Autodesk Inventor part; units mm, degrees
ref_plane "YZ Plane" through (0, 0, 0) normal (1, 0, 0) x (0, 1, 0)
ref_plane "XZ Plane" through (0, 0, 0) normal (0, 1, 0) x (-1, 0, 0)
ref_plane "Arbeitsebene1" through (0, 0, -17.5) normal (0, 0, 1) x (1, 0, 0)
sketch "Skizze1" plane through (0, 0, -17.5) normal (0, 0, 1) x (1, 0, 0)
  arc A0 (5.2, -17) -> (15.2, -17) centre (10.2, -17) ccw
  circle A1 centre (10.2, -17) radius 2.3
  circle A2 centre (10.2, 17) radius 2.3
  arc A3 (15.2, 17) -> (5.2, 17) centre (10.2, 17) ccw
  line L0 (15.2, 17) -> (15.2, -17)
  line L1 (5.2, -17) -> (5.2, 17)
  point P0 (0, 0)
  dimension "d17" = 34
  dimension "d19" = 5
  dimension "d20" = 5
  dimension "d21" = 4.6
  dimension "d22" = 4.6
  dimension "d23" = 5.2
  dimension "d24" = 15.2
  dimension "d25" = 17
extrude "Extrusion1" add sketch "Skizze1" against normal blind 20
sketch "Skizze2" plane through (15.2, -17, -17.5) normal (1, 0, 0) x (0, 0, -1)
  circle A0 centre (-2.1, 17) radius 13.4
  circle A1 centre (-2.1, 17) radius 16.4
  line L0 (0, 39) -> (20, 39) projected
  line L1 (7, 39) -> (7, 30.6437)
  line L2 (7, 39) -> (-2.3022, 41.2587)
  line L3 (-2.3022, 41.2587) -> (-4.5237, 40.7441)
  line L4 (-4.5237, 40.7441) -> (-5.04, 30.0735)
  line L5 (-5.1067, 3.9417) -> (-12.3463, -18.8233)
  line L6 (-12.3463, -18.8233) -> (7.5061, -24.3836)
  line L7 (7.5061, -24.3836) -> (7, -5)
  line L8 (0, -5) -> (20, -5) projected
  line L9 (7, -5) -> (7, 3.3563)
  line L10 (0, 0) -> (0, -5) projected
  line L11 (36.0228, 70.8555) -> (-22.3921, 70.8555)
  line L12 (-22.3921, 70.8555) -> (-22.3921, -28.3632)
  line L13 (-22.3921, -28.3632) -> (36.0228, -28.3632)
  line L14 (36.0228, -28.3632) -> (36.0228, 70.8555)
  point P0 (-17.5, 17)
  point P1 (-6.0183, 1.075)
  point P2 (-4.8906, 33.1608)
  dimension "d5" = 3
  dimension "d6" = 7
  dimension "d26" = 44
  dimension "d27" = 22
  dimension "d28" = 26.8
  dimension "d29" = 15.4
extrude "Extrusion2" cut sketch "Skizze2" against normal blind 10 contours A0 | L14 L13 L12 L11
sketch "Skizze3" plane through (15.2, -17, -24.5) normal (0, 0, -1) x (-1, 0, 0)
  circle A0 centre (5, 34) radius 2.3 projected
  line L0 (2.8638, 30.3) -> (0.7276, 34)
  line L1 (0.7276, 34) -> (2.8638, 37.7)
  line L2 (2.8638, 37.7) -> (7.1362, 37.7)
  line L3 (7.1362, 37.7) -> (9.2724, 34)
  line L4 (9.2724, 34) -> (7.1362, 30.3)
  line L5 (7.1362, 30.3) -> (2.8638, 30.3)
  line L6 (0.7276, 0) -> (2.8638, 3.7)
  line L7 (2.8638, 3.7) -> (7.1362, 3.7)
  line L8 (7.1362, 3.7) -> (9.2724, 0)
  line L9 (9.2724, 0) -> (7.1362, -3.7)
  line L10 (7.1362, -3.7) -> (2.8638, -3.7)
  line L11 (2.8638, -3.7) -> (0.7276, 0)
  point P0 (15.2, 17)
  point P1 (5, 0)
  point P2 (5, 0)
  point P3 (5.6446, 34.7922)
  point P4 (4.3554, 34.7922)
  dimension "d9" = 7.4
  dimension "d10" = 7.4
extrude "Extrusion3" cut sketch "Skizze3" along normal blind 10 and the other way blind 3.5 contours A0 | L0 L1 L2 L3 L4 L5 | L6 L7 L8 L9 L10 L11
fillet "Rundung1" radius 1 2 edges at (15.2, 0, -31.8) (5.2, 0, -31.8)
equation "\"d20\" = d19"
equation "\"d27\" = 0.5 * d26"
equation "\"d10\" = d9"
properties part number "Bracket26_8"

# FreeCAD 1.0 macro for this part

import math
import FreeCAD as App
import Part
import Sketcher
from FreeCAD import Vector
Q = App.Units.Quantity


def edges_at(feature, points):
    """Names of the edges that pass closest to the given points."""
    edges = feature.Shape.Edges
    near = lambda p: min(range(len(edges)), key=lambda i: edges[i].distToShape(Part.Vertex(*p))[0])
    return sorted({f"Edge{near(p) + 1}" for p in points})


def add_polygon(sketch, points):
    """Adds a closed chain of lines whose ends are joined by coincident constraints."""
    first, n = sketch.GeometryCount, len(points)
    for a, b in zip(points, points[1:] + points[:1]):
        sketch.addGeometry(Part.LineSegment(App.Vector(*a, 0), App.Vector(*b, 0)), False)
    for i in range(n):
        sketch.addConstraint(Sketcher.Constraint("Coincident", first + i, 2, first + (i + 1) % n, 1))

doc = App.newDocument("Part")
params = doc.addObject("Spreadsheet::Sheet", "Params")
for row, (alias, value) in enumerate([
    ("sketch1_radius", "5 mm"),
    ("sketch1_diameter", "4.6 mm"),
    ("sketch1_height", "34 mm"),
    ("pad1_length", "20 mm"),
    ("sketch2_diameter", "26.8 mm"),
    ("sketch2_radius", "16.4 mm"),
    ("pocket1_length", "10 mm"),
    ("pocket2_length", "10 mm"),
    ("pocket2_length2", "3.5 mm"),
    ("fillet_radius", "1 mm"),
], start=1):
    params.set(f"A{row}", alias)
    params.set(f"B{row}", "=" + value)
    params.setAlias(f"B{row}", alias)

body = doc.addObject("PartDesign::Body", "Body")

sketch1 = body.newObject("Sketcher::SketchObject", "Sketch")
sketch1.AttachmentSupport = (doc.getObject("XY_Plane"), [""])
sketch1.MapMode = "FlatFace"
sketch1.AttachmentOffset = App.Placement(Vector(0, 0, -17.5), App.Rotation())
sketch1.addGeometry(Part.LineSegment(Vector(5.2, 17, 0), Vector(5.2, -17, 0)), False)
sketch1.addGeometry(Part.ArcOfCircle(Part.Circle(Vector(10.2, -17, 0), Vector(0, 0, 1), 5), math.radians(180), math.radians(360)), False)
sketch1.addGeometry(Part.LineSegment(Vector(15.2, -17, 0), Vector(15.2, 17, 0)), False)
sketch1.addGeometry(Part.ArcOfCircle(Part.Circle(Vector(10.2, 17, 0), Vector(0, 0, 1), 5), math.radians(0), math.radians(180)), False)
sketch1.addGeometry(Part.Circle(Vector(10.2, -17, 0), Vector(0, 0, 1), 2.3), False)
sketch1.addGeometry(Part.Circle(Vector(10.2, 17, 0), Vector(0, 0, 1), 2.3), False)
sketch1.addConstraint(Sketcher.Constraint("Tangent", 0, 2, 1, 1))
sketch1.addConstraint(Sketcher.Constraint("Tangent", 1, 2, 2, 1))
sketch1.addConstraint(Sketcher.Constraint("Tangent", 2, 2, 3, 1))
sketch1.addConstraint(Sketcher.Constraint("Tangent", 3, 2, 0, 1))
sketch1.addConstraint(Sketcher.Constraint("Vertical", 0))
sketch1.addConstraint(Sketcher.Constraint("Vertical", 2))
sketch1.addConstraint(Sketcher.Constraint("Coincident", 4, 3, 1, 3))
sketch1.addConstraint(Sketcher.Constraint("Coincident", 5, 3, 3, 3))
sketch1.addConstraint(Sketcher.Constraint("Equal", 4, 5))
sketch1.addConstraint(Sketcher.Constraint("Radius", 1, Q("5 mm")))
sketch1.addConstraint(Sketcher.Constraint("Diameter", 4, Q("4.6 mm")))
sketch1.addConstraint(Sketcher.Constraint("DistanceY", 0, 2, 0, 1, Q("34 mm")))
sketch1.addConstraint(Sketcher.Constraint("DistanceY", 1, 3, -1, 1, Q("17 mm")))
sketch1.addConstraint(Sketcher.Constraint("DistanceX", -1, 1, 0, 2, Q("5.2 mm")))
sketch1.setExpression("Constraints[9]", "Params.sketch1_radius")
sketch1.setExpression("Constraints[10]", "Params.sketch1_diameter")
sketch1.setExpression("Constraints[11]", "Params.sketch1_height")
pad1 = body.newObject("PartDesign::Pad", "Pad")
pad1.Profile = sketch1
pad1.setExpression("Length", "Params.pad1_length")
pad1.Reversed = True

sketch2 = body.newObject("Sketcher::SketchObject", "Sketch001")
sketch2.AttachmentSupport = (doc.getObject("YZ_Plane"), [""])
sketch2.MapMode = "FlatFace"
sketch2.AttachmentOffset = App.Placement(Vector(0, 0, 15.2), App.Rotation())
sketch2.addGeometry(Part.Circle(Vector(0, -15.4, 0), Vector(0, 0, 1), 13.4), False)
add_polygon(sketch2, [(-45.3632, -53.5228), (53.8555, -53.5228), (53.8555, 4.8921), (-45.3632, 4.8921)])
sketch2.addGeometry(Part.ArcOfCircle(Part.Circle(Vector(0, -15.4, 0), Vector(0, 0, 1), 16.4), math.radians(9.797103), math.radians(166.176933)), False)
sketch2.addGeometry(Part.LineSegment(Vector(16.160831, -12.609381, 0), Vector(23.7441, -12.9763, 0)), False)
sketch2.addGeometry(Part.LineSegment(Vector(23.7441, -12.9763, 0), Vector(24.2587, -15.1978, 0)), False)
sketch2.addGeometry(Part.LineSegment(Vector(24.2587, -15.1978, 0), Vector(22, -24.5, 0)), False)
sketch2.addGeometry(Part.LineSegment(Vector(22, -24.5, 0), Vector(13.6437, -24.5, 0)), False)
sketch2.addGeometry(Part.ArcOfCircle(Part.Circle(Vector(0, -15.4, 0), Vector(0, 0, 1), 16.4), math.radians(-146.297724), math.radians(-33.702276)), False)
sketch2.addGeometry(Part.LineSegment(Vector(-13.6437, -24.5, 0), Vector(-22, -24.5, 0)), False)
sketch2.addGeometry(Part.LineSegment(Vector(-22, -24.5, 0), Vector(-41.3836, -25.0061, 0)), False)
sketch2.addGeometry(Part.LineSegment(Vector(-41.3836, -25.0061, 0), Vector(-35.8233, -5.1537, 0)), False)
sketch2.addGeometry(Part.LineSegment(Vector(-35.8233, -5.1537, 0), Vector(-15.925026, -11.48164, 0)), False)
sketch2.addConstraint(Sketcher.Constraint("Coincident", 5, 1, 6, 1))
sketch2.addConstraint(Sketcher.Constraint("Coincident", 6, 2, 7, 1))
sketch2.addConstraint(Sketcher.Constraint("Coincident", 7, 2, 8, 1))
sketch2.addConstraint(Sketcher.Constraint("Coincident", 8, 2, 9, 1))
sketch2.addConstraint(Sketcher.Constraint("Coincident", 9, 2, 10, 2))
sketch2.addConstraint(Sketcher.Constraint("Coincident", 10, 1, 11, 1))
sketch2.addConstraint(Sketcher.Constraint("Coincident", 11, 2, 12, 1))
sketch2.addConstraint(Sketcher.Constraint("Coincident", 12, 2, 13, 1))
sketch2.addConstraint(Sketcher.Constraint("Coincident", 13, 2, 14, 1))
sketch2.addConstraint(Sketcher.Constraint("Coincident", 14, 2, 5, 2))
sketch2.addConstraint(Sketcher.Constraint("Horizontal", 1))
sketch2.addConstraint(Sketcher.Constraint("Vertical", 2))
sketch2.addConstraint(Sketcher.Constraint("Horizontal", 3))
sketch2.addConstraint(Sketcher.Constraint("Vertical", 4))
sketch2.addConstraint(Sketcher.Constraint("Horizontal", 9))
sketch2.addConstraint(Sketcher.Constraint("Horizontal", 11))
sketch2.addConstraint(Sketcher.Constraint("Coincident", 5, 3, 0, 3))
sketch2.addConstraint(Sketcher.Constraint("Coincident", 10, 3, 0, 3))
sketch2.addConstraint(Sketcher.Constraint("Equal", 5, 10))
sketch2.addConstraint(Sketcher.Constraint("Symmetric", 9, 2, 10, 1, -2))
sketch2.addConstraint(Sketcher.Constraint("Equal", 9, 11))
sketch2.addConstraint(Sketcher.Constraint("Diameter", 0, Q("26.8 mm")))
sketch2.addConstraint(Sketcher.Constraint("DistanceX", -1, 1, 8, 2, Q("22 mm")))
sketch2.addConstraint(Sketcher.Constraint("DistanceY", 0, 3, -1, 1, Q("15.4 mm")))
sketch2.addConstraint(Sketcher.Constraint("Radius", 5, Q("16.4 mm")))
sketch2.addConstraint(Sketcher.Constraint("DistanceY", 8, 2, -1, 1, Q("24.5 mm")))
sketch2.addConstraint(Sketcher.Constraint("Angle", 6, Q("-2.77 deg")))
sketch2.addConstraint(Sketcher.Constraint("DistanceY", 2, 1, 2, 2, Q("58.415 mm")))
sketch2.addConstraint(Sketcher.Constraint("DistanceX", 12, 2, 10, 1, Q("27.74 mm")))
sketch2.addConstraint(Sketcher.Constraint("DistanceX", 3, 2, 13, 2, Q("9.54 mm")))
sketch2.addConstraint(Sketcher.Constraint("DistanceX", 1, 1, 1, 2, Q("99.2187 mm")))
sketch2.addConstraint(Sketcher.Constraint("DistanceY", -1, 1, 2, 2, Q("4.892 mm")))
sketch2.addConstraint(Sketcher.Constraint("DistanceX", -1, 1, 6, 2, Q("23.744 mm")))
sketch2.addConstraint(Sketcher.Constraint("DistanceY", 12, 2, -1, 1, Q("25.006 mm")))
sketch2.addConstraint(Sketcher.Constraint("DistanceX", 14, 2, -1, 1, Q("15.925 mm")))
sketch2.addConstraint(Sketcher.Constraint("DistanceX", 9, 2, 7, 2, Q("10.615 mm")))
sketch2.addConstraint(Sketcher.Constraint("Distance", 6, Q("7.5921 mm")))
sketch2.addConstraint(Sketcher.Constraint("Distance", 7, Q("2.2803 mm")))
sketch2.addConstraint(Sketcher.Constraint("Distance", 13, Q("20.6164 mm")))
sketch2.addConstraint(Sketcher.Constraint("Distance", 14, Q("20.8802 mm")))
sketch2.setExpression("Constraints[25]", "Params.sketch2_diameter")
sketch2.setExpression("Constraints[28]", "Params.sketch2_radius")
pocket1 = body.newObject("PartDesign::Pocket", "Pocket")
pocket1.Profile = sketch2
pocket1.setExpression("Length", "Params.pocket1_length")

sketch3 = body.newObject("Sketcher::SketchObject", "Sketch002")
sketch3.AttachmentSupport = (doc.getObject("XY_Plane"), [""])
sketch3.MapMode = "FlatFace"
sketch3.AttachmentOffset = App.Placement(Vector(0, 0, -24.5), App.Rotation())
add_polygon(sketch3, [(14.4724, 17), (12.3362, 13.3), (8.0638, 13.3), (5.9276, 17), (8.0638, 20.7), (12.3362, 20.7)])
add_polygon(sketch3, [(12.3362, -13.3), (14.4724, -17), (12.3362, -20.7), (8.0638, -20.7), (5.9276, -17), (8.0638, -13.3)])
sketch3.addConstraint(Sketcher.Constraint("Horizontal", 1))
sketch3.addConstraint(Sketcher.Constraint("Horizontal", 4))
sketch3.addConstraint(Sketcher.Constraint("Horizontal", 8))
sketch3.addConstraint(Sketcher.Constraint("Horizontal", 11))
sketch3.addConstraint(Sketcher.Constraint("Symmetric", 5, 2, 6, 2, -1))
sketch3.addConstraint(Sketcher.Constraint("Symmetric", 4, 2, 7, 2, -1))
sketch3.addConstraint(Sketcher.Constraint("Symmetric", 2, 2, 9, 2, -1))
sketch3.addConstraint(Sketcher.Constraint("Symmetric", 1, 2, 10, 2, -1))
sketch3.addConstraint(Sketcher.Constraint("Parallel", 0, 3))
sketch3.addConstraint(Sketcher.Constraint("Parallel", 2, 5))
sketch3.addConstraint(Sketcher.Constraint("Parallel", 5, 6))
sketch3.addConstraint(Sketcher.Constraint("Parallel", 3, 7))
sketch3.addConstraint(Sketcher.Constraint("Parallel", 6, 9))
sketch3.addConstraint(Sketcher.Constraint("Horizontal", 2, 2, 5, 2))
sketch3.addConstraint(Sketcher.Constraint("Vertical", 1, 2, 3, 2))
sketch3.addConstraint(Sketcher.Constraint("DistanceY", 1, 2, 3, 2, Q("7.4 mm")))
sketch3.addConstraint(Sketcher.Constraint("Angle", 0, Q("-120 deg")))
sketch3.addConstraint(Sketcher.Constraint("DistanceY", -1, 1, 2, 2, Q("17 mm")))
sketch3.addConstraint(Sketcher.Constraint("DistanceX", 1, 2, 1, 1, Q("4.2724 mm")))
sketch3.addConstraint(Sketcher.Constraint("DistanceX", -1, 1, 0, 2, Q("12.3362 mm")))
pocket2 = body.newObject("PartDesign::Pocket", "Pocket001")
pocket2.Profile = sketch3
pocket2.Type = "TwoLengths"
pocket2.setExpression("Length", "Params.pocket2_length")
pocket2.setExpression("Length2", "Params.pocket2_length2")
doc.recompute()

fillet = body.newObject("PartDesign::Fillet", "Fillet")
fillet.Base = (pocket2, edges_at(pocket2, [(15.2, 0, -31.8), (5.2, 0, -31.8)]))
fillet.setExpression("Radius", "Params.fillet_radius")

doc.recompute()
